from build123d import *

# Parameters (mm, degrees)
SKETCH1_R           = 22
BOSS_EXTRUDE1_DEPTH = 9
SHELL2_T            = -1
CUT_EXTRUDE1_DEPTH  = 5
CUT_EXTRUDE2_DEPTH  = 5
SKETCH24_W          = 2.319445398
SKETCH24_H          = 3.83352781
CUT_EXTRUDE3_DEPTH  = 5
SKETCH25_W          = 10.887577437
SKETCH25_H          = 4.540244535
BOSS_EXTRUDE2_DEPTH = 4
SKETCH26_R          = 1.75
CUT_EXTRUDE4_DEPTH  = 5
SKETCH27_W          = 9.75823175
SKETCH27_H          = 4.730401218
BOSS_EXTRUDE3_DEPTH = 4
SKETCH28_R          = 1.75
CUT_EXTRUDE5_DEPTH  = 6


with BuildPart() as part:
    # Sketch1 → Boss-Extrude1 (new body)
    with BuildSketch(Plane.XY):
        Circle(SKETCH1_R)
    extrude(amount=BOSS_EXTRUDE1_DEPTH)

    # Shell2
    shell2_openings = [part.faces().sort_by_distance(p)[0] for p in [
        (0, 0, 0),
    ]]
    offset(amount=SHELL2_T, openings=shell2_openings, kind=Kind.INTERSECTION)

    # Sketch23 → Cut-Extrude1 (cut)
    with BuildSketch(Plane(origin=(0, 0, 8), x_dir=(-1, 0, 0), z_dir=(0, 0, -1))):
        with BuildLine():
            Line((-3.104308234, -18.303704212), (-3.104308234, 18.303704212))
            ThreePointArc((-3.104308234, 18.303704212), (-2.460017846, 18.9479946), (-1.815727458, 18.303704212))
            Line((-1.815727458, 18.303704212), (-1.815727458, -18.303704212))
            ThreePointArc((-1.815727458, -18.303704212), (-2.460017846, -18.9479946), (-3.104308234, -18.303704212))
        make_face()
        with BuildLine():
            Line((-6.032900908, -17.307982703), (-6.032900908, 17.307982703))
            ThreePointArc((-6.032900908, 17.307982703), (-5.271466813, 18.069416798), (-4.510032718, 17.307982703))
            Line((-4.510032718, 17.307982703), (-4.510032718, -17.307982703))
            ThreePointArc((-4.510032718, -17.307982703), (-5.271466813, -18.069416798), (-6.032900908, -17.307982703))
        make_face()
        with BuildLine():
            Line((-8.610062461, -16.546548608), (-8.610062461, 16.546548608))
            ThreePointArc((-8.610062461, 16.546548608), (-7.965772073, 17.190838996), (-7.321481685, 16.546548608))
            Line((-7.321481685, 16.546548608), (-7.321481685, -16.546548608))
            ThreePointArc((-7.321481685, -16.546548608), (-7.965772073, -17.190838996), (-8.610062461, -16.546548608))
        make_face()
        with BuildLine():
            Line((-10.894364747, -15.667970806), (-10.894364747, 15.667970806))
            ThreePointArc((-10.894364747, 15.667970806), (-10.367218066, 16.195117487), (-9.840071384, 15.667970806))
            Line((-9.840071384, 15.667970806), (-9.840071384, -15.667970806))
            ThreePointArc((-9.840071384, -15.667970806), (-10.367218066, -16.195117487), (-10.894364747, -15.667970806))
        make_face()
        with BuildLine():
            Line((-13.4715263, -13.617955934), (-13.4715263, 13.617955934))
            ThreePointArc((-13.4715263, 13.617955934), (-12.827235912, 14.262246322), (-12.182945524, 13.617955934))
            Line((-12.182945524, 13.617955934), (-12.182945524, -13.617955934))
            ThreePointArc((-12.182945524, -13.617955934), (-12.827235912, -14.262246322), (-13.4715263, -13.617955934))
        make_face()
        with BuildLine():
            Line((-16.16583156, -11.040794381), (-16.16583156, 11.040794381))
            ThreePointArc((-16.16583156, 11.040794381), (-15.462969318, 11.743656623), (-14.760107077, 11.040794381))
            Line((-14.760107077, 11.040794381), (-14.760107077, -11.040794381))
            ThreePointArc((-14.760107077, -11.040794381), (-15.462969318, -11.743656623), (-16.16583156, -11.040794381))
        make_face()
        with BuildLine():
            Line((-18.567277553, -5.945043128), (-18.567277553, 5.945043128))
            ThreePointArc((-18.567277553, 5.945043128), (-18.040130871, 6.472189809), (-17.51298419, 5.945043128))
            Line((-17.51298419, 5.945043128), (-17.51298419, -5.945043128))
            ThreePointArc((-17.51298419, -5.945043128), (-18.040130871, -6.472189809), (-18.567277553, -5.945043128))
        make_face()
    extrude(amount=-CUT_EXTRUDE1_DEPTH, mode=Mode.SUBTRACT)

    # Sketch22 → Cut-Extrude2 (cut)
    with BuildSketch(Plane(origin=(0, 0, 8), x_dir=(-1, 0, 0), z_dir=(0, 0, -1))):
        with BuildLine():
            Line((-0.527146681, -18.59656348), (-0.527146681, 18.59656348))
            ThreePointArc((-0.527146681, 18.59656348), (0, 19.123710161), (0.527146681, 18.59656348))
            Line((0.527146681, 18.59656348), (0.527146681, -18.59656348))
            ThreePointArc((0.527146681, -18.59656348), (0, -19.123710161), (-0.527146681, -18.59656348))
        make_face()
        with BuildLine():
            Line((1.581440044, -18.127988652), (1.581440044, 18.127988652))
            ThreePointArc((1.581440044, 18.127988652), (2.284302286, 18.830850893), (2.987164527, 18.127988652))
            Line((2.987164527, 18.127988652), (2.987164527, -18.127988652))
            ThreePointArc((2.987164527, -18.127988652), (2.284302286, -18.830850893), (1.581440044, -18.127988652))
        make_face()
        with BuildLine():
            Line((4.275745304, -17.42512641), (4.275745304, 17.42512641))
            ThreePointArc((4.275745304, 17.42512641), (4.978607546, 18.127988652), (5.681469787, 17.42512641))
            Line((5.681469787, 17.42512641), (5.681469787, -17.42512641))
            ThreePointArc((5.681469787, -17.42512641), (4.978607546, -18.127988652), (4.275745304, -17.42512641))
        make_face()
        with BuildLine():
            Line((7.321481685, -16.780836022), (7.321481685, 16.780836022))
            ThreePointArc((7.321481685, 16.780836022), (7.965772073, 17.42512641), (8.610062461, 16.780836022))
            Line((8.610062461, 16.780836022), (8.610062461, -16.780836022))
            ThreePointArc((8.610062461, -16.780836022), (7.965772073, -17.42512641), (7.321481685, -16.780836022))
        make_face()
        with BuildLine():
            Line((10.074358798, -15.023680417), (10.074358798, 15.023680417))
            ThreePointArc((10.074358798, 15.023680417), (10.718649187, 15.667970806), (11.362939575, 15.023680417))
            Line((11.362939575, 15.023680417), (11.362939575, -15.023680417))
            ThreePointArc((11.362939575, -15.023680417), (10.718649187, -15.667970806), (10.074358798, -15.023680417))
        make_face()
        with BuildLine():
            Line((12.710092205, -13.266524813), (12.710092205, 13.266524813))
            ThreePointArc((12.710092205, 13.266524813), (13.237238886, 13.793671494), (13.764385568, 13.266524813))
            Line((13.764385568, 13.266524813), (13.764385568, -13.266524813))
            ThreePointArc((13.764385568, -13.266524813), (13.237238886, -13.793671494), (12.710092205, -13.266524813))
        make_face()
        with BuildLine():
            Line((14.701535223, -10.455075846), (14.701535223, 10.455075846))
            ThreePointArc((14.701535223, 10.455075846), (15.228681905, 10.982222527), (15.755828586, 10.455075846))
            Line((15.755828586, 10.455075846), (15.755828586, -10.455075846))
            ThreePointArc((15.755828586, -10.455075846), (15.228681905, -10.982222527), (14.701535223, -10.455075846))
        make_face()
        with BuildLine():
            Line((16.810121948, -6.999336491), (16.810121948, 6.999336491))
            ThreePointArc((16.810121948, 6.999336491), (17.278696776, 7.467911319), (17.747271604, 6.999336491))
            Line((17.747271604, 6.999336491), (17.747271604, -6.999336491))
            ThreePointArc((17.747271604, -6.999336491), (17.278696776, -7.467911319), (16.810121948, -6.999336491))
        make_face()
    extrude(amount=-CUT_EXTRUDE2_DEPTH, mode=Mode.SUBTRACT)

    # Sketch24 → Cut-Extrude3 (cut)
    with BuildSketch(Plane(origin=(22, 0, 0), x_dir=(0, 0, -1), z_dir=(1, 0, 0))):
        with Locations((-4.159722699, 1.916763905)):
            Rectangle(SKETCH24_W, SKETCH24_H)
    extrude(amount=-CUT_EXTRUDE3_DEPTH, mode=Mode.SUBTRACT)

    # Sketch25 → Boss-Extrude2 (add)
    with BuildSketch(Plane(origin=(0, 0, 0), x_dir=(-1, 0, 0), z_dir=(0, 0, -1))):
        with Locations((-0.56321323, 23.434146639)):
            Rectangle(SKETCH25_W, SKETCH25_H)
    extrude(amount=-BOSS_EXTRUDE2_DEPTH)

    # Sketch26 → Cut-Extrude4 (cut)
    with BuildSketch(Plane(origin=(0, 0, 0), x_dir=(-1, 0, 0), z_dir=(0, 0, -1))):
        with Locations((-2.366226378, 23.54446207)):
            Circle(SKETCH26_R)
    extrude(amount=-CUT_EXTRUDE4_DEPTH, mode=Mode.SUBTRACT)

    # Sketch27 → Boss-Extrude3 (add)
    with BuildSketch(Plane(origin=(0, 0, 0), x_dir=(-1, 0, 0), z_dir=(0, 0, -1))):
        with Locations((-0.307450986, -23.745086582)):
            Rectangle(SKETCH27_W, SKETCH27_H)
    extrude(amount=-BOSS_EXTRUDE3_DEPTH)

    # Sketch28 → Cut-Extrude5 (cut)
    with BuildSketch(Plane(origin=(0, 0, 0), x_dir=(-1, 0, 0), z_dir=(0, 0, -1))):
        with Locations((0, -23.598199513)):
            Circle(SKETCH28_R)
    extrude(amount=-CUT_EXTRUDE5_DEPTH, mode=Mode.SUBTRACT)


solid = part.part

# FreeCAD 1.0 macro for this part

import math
import FreeCAD as App
import Part
import Sketcher
Q = App.Units.Quantity


def faces_at(feature, points):
    """Names of the faces that lie closest to the given points."""
    faces = feature.Shape.Faces
    near = lambda p: min(range(len(faces)), key=lambda i: faces[i].distToShape(Part.Vertex(*p))[0])
    return sorted({f"Face{near(p) + 1}" for p in points})

doc = App.newDocument("Part")
body = doc.addObject("PartDesign::Body", "Body")

sketch1 = doc.addObject("Sketcher::SketchObject", "Sketch")
body.addObject(sketch1)
sketch1.AttachmentSupport = (doc.XY_Plane, [""])
sketch1.MapMode = "FlatFace"
sketch1.addGeometry(Part.Circle(App.Vector(0, 0, 0), App.Vector(0, 0, 1), 22), False)
sketch1.addConstraint([
    Sketcher.Constraint("Coincident", 0, 3, -1, 1),
    Sketcher.Constraint("Diameter", 0, Q("44 mm")),
])
pad1 = doc.addObject("PartDesign::Pad", "Pad")
body.addObject(pad1)
pad1.Profile = sketch1
pad1.Length = 9
doc.recompute()

thickness = doc.addObject("PartDesign::Thickness", "Thickness")
body.addObject(thickness)
thickness.Base = (pad1, faces_at(pad1, [(0, 0, 0)]))
thickness.Value = 1
thickness.Reversed = True
thickness.Join = "Intersection"

sketch2 = doc.addObject("Sketcher::SketchObject", "Sketch001")
body.addObject(sketch2)
sketch2.AttachmentSupport = (doc.XY_Plane, [""])
sketch2.MapMode = "FlatFace"
sketch2.AttachmentOffset = App.Placement(App.Vector(0, 0, 8), App.Rotation())
sketch2.addGeometry([
    Part.LineSegment(App.Vector(3.1, 18.3, 0), App.Vector(3.1, -18.3, 0)),
    Part.ArcOfCircle(Part.Circle(App.Vector(2.5, -18.3, 0), App.Vector(0, 0, 1), 0.6), math.radians(180), math.radians(360)),
    Part.LineSegment(App.Vector(1.8, -18.3, 0), App.Vector(1.8, 18.3, 0)),
    Part.ArcOfCircle(Part.Circle(App.Vector(2.5, 18.3, 0), App.Vector(0, 0, 1), 0.6), math.radians(0), math.radians(180)),
    Part.LineSegment(App.Vector(6, 17.3, 0), App.Vector(6, -17.3, 0)),
    Part.ArcOfCircle(Part.Circle(App.Vector(5.3, -17.3, 0), App.Vector(0, 0, 1), 0.8), math.radians(180), math.radians(360)),
    Part.LineSegment(App.Vector(4.5, -17.3, 0), App.Vector(4.5, 17.3, 0)),
    Part.ArcOfCircle(Part.Circle(App.Vector(5.3, 17.3, 0), App.Vector(0, 0, 1), 0.8), math.radians(0), math.radians(180)),
    Part.LineSegment(App.Vector(8.6, 16.5, 0), App.Vector(8.6, -16.5, 0)),
    Part.ArcOfCircle(Part.Circle(App.Vector(8, -16.5, 0), App.Vector(0, 0, 1), 0.6), math.radians(180), math.radians(360)),
    Part.LineSegment(App.Vector(7.3, -16.5, 0), App.Vector(7.3, 16.5, 0)),
    Part.ArcOfCircle(Part.Circle(App.Vector(8, 16.5, 0), App.Vector(0, 0, 1), 0.6), math.radians(0), math.radians(180)),
    Part.LineSegment(App.Vector(10.9, 15.7, 0), App.Vector(10.9, -15.7, 0)),
    Part.ArcOfCircle(Part.Circle(App.Vector(10.4, -15.7, 0), App.Vector(0, 0, 1), 0.5), math.radians(180), math.radians(360)),
    Part.LineSegment(App.Vector(9.8, -15.7, 0), App.Vector(9.8, 15.7, 0)),
    Part.ArcOfCircle(Part.Circle(App.Vector(10.4, 15.7, 0), App.Vector(0, 0, 1), 0.5), math.radians(0), math.radians(180)),
    Part.LineSegment(App.Vector(13.5, 13.6, 0), App.Vector(13.5, -13.6, 0)),
    Part.ArcOfCircle(Part.Circle(App.Vector(12.8, -13.6, 0), App.Vector(0, 0, 1), 0.6), math.radians(180), math.radians(360)),
    Part.LineSegment(App.Vector(12.2, -13.6, 0), App.Vector(12.2, 13.6, 0)),
    Part.ArcOfCircle(Part.Circle(App.Vector(12.8, 13.6, 0), App.Vector(0, 0, 1), 0.6), math.radians(0), math.radians(180)),
    Part.LineSegment(App.Vector(16.2, 11, 0), App.Vector(16.2, -11, 0)),
    Part.ArcOfCircle(Part.Circle(App.Vector(15.5, -11, 0), App.Vector(0, 0, 1), 0.7), math.radians(180), math.radians(360)),
    Part.LineSegment(App.Vector(14.8, -11, 0), App.Vector(14.8, 11, 0)),
    Part.ArcOfCircle(Part.Circle(App.Vector(15.5, 11, 0), App.Vector(0, 0, 1), 0.7), math.radians(0), math.radians(180)),
    Part.LineSegment(App.Vector(18.6, 5.9, 0), App.Vector(18.6, -5.9, 0)),
    Part.ArcOfCircle(Part.Circle(App.Vector(18, -5.9, 0), App.Vector(0, 0, 1), 0.5), math.radians(-180), math.radians(0)),
    Part.LineSegment(App.Vector(17.5, -5.9, 0), App.Vector(17.5, 5.9, 0)),
    Part.ArcOfCircle(Part.Circle(App.Vector(18, 5.9, 0), App.Vector(0, 0, 1), 0.5), math.radians(0), math.radians(180)),
], False)
sketch2.addConstraint([
    Sketcher.Constraint("Tangent", 0, 2, 1, 2),
    Sketcher.Constraint("Tangent", 1, 1, 2, 1),
    Sketcher.Constraint("Tangent", 2, 2, 3, 2),
    Sketcher.Constraint("Tangent", 3, 1, 0, 1),
    Sketcher.Constraint("Tangent", 4, 2, 5, 2),
    Sketcher.Constraint("Tangent", 5, 1, 6, 1),
    Sketcher.Constraint("Tangent", 6, 2, 7, 2),
    Sketcher.Constraint("Tangent", 7, 1, 4, 1),
    Sketcher.Constraint("Tangent", 8, 2, 9, 2),
    Sketcher.Constraint("Tangent", 9, 1, 10, 1),
    Sketcher.Constraint("Tangent", 10, 2, 11, 2),
    Sketcher.Constraint("Tangent", 11, 1, 8, 1),
    Sketcher.Constraint("Tangent", 12, 2, 13, 2),
    Sketcher.Constraint("Tangent", 13, 1, 14, 1),
    Sketcher.Constraint("Tangent", 14, 2, 15, 2),
    Sketcher.Constraint("Tangent", 15, 1, 12, 1),
    Sketcher.Constraint("Tangent", 16, 2, 17, 2),
    Sketcher.Constraint("Tangent", 17, 1, 18, 1),
    Sketcher.Constraint("Tangent", 18, 2, 19, 2),
    Sketcher.Constraint("Tangent", 19, 1, 16, 1),
    Sketcher.Constraint("Tangent", 20, 2, 21, 2),
    Sketcher.Constraint("Tangent", 21, 1, 22, 1),
    Sketcher.Constraint("Tangent", 22, 2, 23, 2),
    Sketcher.Constraint("Tangent", 23, 1, 20, 1),
    Sketcher.Constraint("Tangent", 24, 2, 25, 2),
    Sketcher.Constraint("Tangent", 25, 1, 26, 1),
    Sketcher.Constraint("Tangent", 26, 2, 27, 2),
    Sketcher.Constraint("Tangent", 27, 1, 24, 1),
    Sketcher.Constraint("Vertical", 0),
    Sketcher.Constraint("Vertical", 2),
    Sketcher.Constraint("Vertical", 4),
    Sketcher.Constraint("Vertical", 6),
    Sketcher.Constraint("Vertical", 8),
    Sketcher.Constraint("Vertical", 10),
    Sketcher.Constraint("Vertical", 12),
    Sketcher.Constraint("Vertical", 14),
    Sketcher.Constraint("Vertical", 16),
    Sketcher.Constraint("Vertical", 18),
    Sketcher.Constraint("Vertical", 20),
    Sketcher.Constraint("Vertical", 22),
    Sketcher.Constraint("Vertical", 24),
    Sketcher.Constraint("Vertical", 26),
    Sketcher.Constraint("Equal", 3, 9),
    Sketcher.Constraint("Equal", 11, 17),
    Sketcher.Constraint("Equal", 15, 25),
    Sketcher.Constraint("Radius", 1, Q("0.64429 mm")),
    Sketcher.Constraint("Radius", 5, Q("0.761434 mm")),
    Sketcher.Constraint("Radius", 13, Q("0.527147 mm")),
    Sketcher.Constraint("Radius", 21, Q("0.702862 mm")),
    Sketcher.Constraint("DistanceY", 0, 2, 0, 1, Q("36.607408 mm")),
    Sketcher.Constraint("DistanceY", 12, 2, 12, 1, Q("31.335942 mm")),
    Sketcher.Constraint("DistanceY", 16, 2, 16, 1, Q("27.235912 mm")),
    Sketcher.Constraint("DistanceY", 20, 2, 20, 1, Q("22.081589 mm")),
    Sketcher.Constraint("DistanceX", -1, 1, 4, 2, Q("6.032901 mm")),
    Sketcher.Constraint("DistanceX", 1, 3, 13, 3, Q("7.9072 mm")),
    Sketcher.Constraint("DistanceX", 9, 3, 13, 1, Q("1.874299 mm")),
    Sketcher.Constraint("DistanceX", 20, 2, 25, 3, Q("1.874299 mm")),
    Sketcher.Constraint("DistanceY", 4, 2, 4, 1, Q("34.615965 mm")),
    Sketcher.Constraint("DistanceY", 8, 2, 8, 1, Q("33.093097 mm")),
    Sketcher.Constraint("DistanceY", 24, 2, 24, 1, Q("11.890086 mm")),
    Sketcher.Constraint("DistanceY", 9, 3, -1, 1, Q("16.546549 mm")),
    Sketcher.Constraint("DistanceX", -1, 1, 13, 3, Q("10.367218 mm")),
    Sketcher.Constraint("DistanceY", 13, 3, -1, 1, Q("15.667971 mm")),
    Sketcher.Constraint("DistanceX", -1, 1, 21, 3, Q("15.462969 mm")),
    Sketcher.Constraint("DistanceY", 1, 3, 5, 3, Q("0.995722 mm")),
    Sketcher.Constraint("DistanceY", 9, 3, 7, 3, Q("33.854531 mm")),
    Sketcher.Constraint("DistanceX", 5, 3, 17, 3, Q("7.555769 mm")),
    Sketcher.Constraint("DistanceY", 1, 3, 17, 3, Q("4.685748 mm")),
    Sketcher.Constraint("DistanceY", 17, 3, 21, 3, Q("2.577162 mm")),
    Sketcher.Constraint("DistanceY", 21, 3, 25, 3, Q("5.095751 mm")),
])
pocket1 = doc.addObject("PartDesign::Pocket", "Pocket")
body.addObject(pocket1)
pocket1.Profile = sketch2
pocket1.Length = 5
pocket1.Reversed = True

sketch3 = doc.addObject("Sketcher::SketchObject", "Sketch002")
body.addObject(sketch3)
sketch3.AttachmentSupport = (doc.XY_Plane, [""])
sketch3.MapMode = "FlatFace"
sketch3.AttachmentOffset = App.Placement(App.Vector(0, 0, 8), App.Rotation())
sketch3.addGeometry([
    Part.LineSegment(App.Vector(0.53, 18.6, 0), App.Vector(0.53, -18.6, 0)),
    Part.ArcOfCircle(Part.Circle(App.Vector(0, -18.6, 0), App.Vector(0, 0, 1), 0.53), math.radians(180), math.radians(360)),
    Part.LineSegment(App.Vector(-0.53, -18.6, 0), App.Vector(-0.53, 18.6, 0)),
    Part.ArcOfCircle(Part.Circle(App.Vector(0, 18.6, 0), App.Vector(0, 0, 1), 0.53), math.radians(0), math.radians(180)),
    Part.LineSegment(App.Vector(-1.58, 18.13, 0), App.Vector(-1.58, -18.13, 0)),
    Part.ArcOfCircle(Part.Circle(App.Vector(-2.28, -18.13, 0), App.Vector(0, 0, 1), 0.7), math.radians(180), math.radians(360)),
    Part.LineSegment(App.Vector(-2.99, -18.13, 0), App.Vector(-2.99, 18.13, 0)),
    Part.ArcOfCircle(Part.Circle(App.Vector(-2.28, 18.13, 0), App.Vector(0, 0, 1), 0.7), math.radians(0), math.radians(180)),
    Part.LineSegment(App.Vector(-4.28, 17.43, 0), App.Vector(-4.28, -17.43, 0)),
    Part.ArcOfCircle(Part.Circle(App.Vector(-4.98, -17.43, 0), App.Vector(0, 0, 1), 0.7), math.radians(180), math.radians(360)),
    Part.LineSegment(App.Vector(-5.68, -17.43, 0), App.Vector(-5.68, 17.43, 0)),
    Part.ArcOfCircle(Part.Circle(App.Vector(-4.98, 17.43, 0), App.Vector(0, 0, 1), 0.7), math.radians(0), math.radians(180)),
    Part.LineSegment(App.Vector(-7.32, 16.78, 0), App.Vector(-7.32, -16.78, 0)),
    Part.ArcOfCircle(Part.Circle(App.Vector(-7.97, -16.78, 0), App.Vector(0, 0, 1), 0.64), math.radians(180), math.radians(360)),
    Part.LineSegment(App.Vector(-8.61, -16.78, 0), App.Vector(-8.61, 16.78, 0)),
    Part.ArcOfCircle(Part.Circle(App.Vector(-7.97, 16.78, 0), App.Vector(0, 0, 1), 0.64), math.radians(0), math.radians(180)),
    Part.LineSegment(App.Vector(-10.07, 15.02, 0), App.Vector(-10.07, -15.02, 0)),
    Part.ArcOfCircle(Part.Circle(App.Vector(-10.72, -15.02, 0), App.Vector(0, 0, 1), 0.64), math.radians(180), math.radians(360)),
    Part.LineSegment(App.Vector(-11.36, -15.02, 0), App.Vector(-11.36, 15.02, 0)),
    Part.ArcOfCircle(Part.Circle(App.Vector(-10.72, 15.02, 0), App.Vector(0, 0, 1), 0.64), math.radians(0), math.radians(180)),
    Part.LineSegment(App.Vector(-12.71, 13.27, 0), App.Vector(-12.71, -13.27, 0)),
    Part.ArcOfCircle(Part.Circle(App.Vector(-13.24, -13.27, 0), App.Vector(0, 0, 1), 0.53), math.radians(-180), math.radians(0)),
    Part.LineSegment(App.Vector(-13.76, -13.27, 0), App.Vector(-13.76, 13.27, 0)),
    Part.ArcOfCircle(Part.Circle(App.Vector(-13.24, 13.27, 0), App.Vector(0, 0, 1), 0.53), math.radians(0), math.radians(180)),
    Part.LineSegment(App.Vector(-14.7, 10.46, 0), App.Vector(-14.7, -10.46, 0)),
    Part.ArcOfCircle(Part.Circle(App.Vector(-15.23, -10.46, 0), App.Vector(0, 0, 1), 0.53), math.radians(-180), math.radians(0)),
    Part.LineSegment(App.Vector(-15.76, -10.46, 0), App.Vector(-15.76, 10.46, 0)),
    Part.ArcOfCircle(Part.Circle(App.Vector(-15.23, 10.46, 0), App.Vector(0, 0, 1), 0.53), math.radians(0), math.radians(180)),
    Part.LineSegment(App.Vector(-16.81, 7, 0), App.Vector(-16.81, -7, 0)),
    Part.ArcOfCircle(Part.Circle(App.Vector(-17.28, -7, 0), App.Vector(0, 0, 1), 0.47), math.radians(180), math.radians(360)),
    Part.LineSegment(App.Vector(-17.75, -7, 0), App.Vector(-17.75, 7, 0)),
    Part.ArcOfCircle(Part.Circle(App.Vector(-17.28, 7, 0), App.Vector(0, 0, 1), 0.47), math.radians(0), math.radians(180)),
], False)
sketch3.addConstraint([
    Sketcher.Constraint("Tangent", 0, 2, 1, 2),
    Sketcher.Constraint("Tangent", 1, 1, 2, 1),
    Sketcher.Constraint("Tangent", 2, 2, 3, 2),
    Sketcher.Constraint("Tangent", 3, 1, 0, 1),
    Sketcher.Constraint("Tangent", 4, 2, 5, 2),
    Sketcher.Constraint("Tangent", 5, 1, 6, 1),
    Sketcher.Constraint("Tangent", 6, 2, 7, 2),
    Sketcher.Constraint("Tangent", 7, 1, 4, 1),
    Sketcher.Constraint("Tangent", 8, 2, 9, 2),
    Sketcher.Constraint("Tangent", 9, 1, 10, 1),
    Sketcher.Constraint("Tangent", 10, 2, 11, 2),
    Sketcher.Constraint("Tangent", 11, 1, 8, 1),
    Sketcher.Constraint("Tangent", 12, 2, 13, 2),
    Sketcher.Constraint("Tangent", 13, 1, 14, 1),
    Sketcher.Constraint("Tangent", 14, 2, 15, 2),
    Sketcher.Constraint("Tangent", 15, 1, 12, 1),
    Sketcher.Constraint("Tangent", 16, 2, 17, 2),
    Sketcher.Constraint("Tangent", 17, 1, 18, 1),
    Sketcher.Constraint("Tangent", 18, 2, 19, 2),
    Sketcher.Constraint("Tangent", 19, 1, 16, 1),
    Sketcher.Constraint("Tangent", 20, 2, 21, 2),
    Sketcher.Constraint("Tangent", 21, 1, 22, 1),
    Sketcher.Constraint("Tangent", 22, 2, 23, 2),
    Sketcher.Constraint("Tangent", 23, 1, 20, 1),
    Sketcher.Constraint("Tangent", 24, 2, 25, 2),
    Sketcher.Constraint("Tangent", 25, 1, 26, 1),
    Sketcher.Constraint("Tangent", 26, 2, 27, 2),
    Sketcher.Constraint("Tangent", 27, 1, 24, 1),
    Sketcher.Constraint("Tangent", 28, 2, 29, 2),
    Sketcher.Constraint("Tangent", 29, 1, 30, 1),
    Sketcher.Constraint("Tangent", 30, 2, 31, 2),
    Sketcher.Constraint("Tangent", 31, 1, 28, 1),
    Sketcher.Constraint("Vertical", 0),
    Sketcher.Constraint("Vertical", 2),
    Sketcher.Constraint("Vertical", 4),
    Sketcher.Constraint("Vertical", 6),
    Sketcher.Constraint("Vertical", 8),
    Sketcher.Constraint("Vertical", 10),
    Sketcher.Constraint("Vertical", 12),
    Sketcher.Constraint("Vertical", 14),
    Sketcher.Constraint("Vertical", 16),
    Sketcher.Constraint("Vertical", 18),
    Sketcher.Constraint("Vertical", 20),
    Sketcher.Constraint("Vertical", 22),
    Sketcher.Constraint("Vertical", 24),
    Sketcher.Constraint("Vertical", 26),
    Sketcher.Constraint("Vertical", 28),
    Sketcher.Constraint("Vertical", 30),
    Sketcher.Constraint("Equal", 7, 9),
    Sketcher.Constraint("Equal", 15, 17),
    Sketcher.Constraint("Equal", 3, 21),
    Sketcher.Constraint("Equal", 23, 25),
    Sketcher.Constraint("Symmetric", 1, 3, 3, 3, -1, 1),
    Sketcher.Constraint("Radius", 13, Q("0.64429 mm")),
    Sketcher.Constraint("Radius", 1, Q("0.527147 mm")),
    Sketcher.Constraint("Radius", 5, Q("0.702862 mm")),
    Sketcher.Constraint("Radius", 29, Q("0.468575 mm")),
    Sketcher.Constraint("DistanceY", 16, 2, 16, 1, Q("30.047361 mm")),
    Sketcher.Constraint("DistanceY", 20, 2, 20, 1, Q("26.53305 mm")),
    Sketcher.Constraint("DistanceY", 24, 2, 24, 1, Q("20.910152 mm")),
    Sketcher.Constraint("DistanceY", 9, 3, 21, 3, Q("4.158602 mm")),
    Sketcher.Constraint("DistanceY", 23, 3, 11, 3, Q("4.158602 mm")),
    Sketcher.Constraint("DistanceY", 13, 3, 29, 3, Q("9.7815 mm")),
    Sketcher.Constraint("DistanceY", 31, 3, 15, 3, Q("9.7815 mm")),
    Sketcher.Constraint("DistanceX", 21, 3, 17, 1, Q("1.874299 mm")),
    Sketcher.Constraint("DistanceY", 0, 2, 0, 1, Q("37.193127 mm")),
    Sketcher.Constraint("DistanceY", 4, 2, 4, 1, Q("36.255977 mm")),
    Sketcher.Constraint("DistanceY", 12, 2, 12, 1, Q("33.561672 mm")),
    Sketcher.Constraint("DistanceY", 5, 3, -1, 1, Q("18.127989 mm")),
    Sketcher.Constraint("DistanceX", 17, 3, -1, 1, Q("10.718649 mm")),
    Sketcher.Constraint("DistanceY", 17, 3, -1, 1, Q("15.02368 mm")),
    Sketcher.Constraint("DistanceX", 25, 3, -1, 1, Q("15.228682 mm")),
    Sketcher.Constraint("DistanceX", 4, 2, -1, 1, Q("1.58144 mm")),
    Sketcher.Constraint("DistanceX", 9, 1, -1, 1, Q("5.68147 mm")),
    Sketcher.Constraint("DistanceX", 12, 2, -1, 1, Q("7.321482 mm")),
    Sketcher.Constraint("DistanceX", 28, 2, -1, 1, Q("16.810122 mm")),
    Sketcher.Constraint("DistanceY", 9, 3, 3, 3, Q("36.02169 mm")),
    Sketcher.Constraint("DistanceY", 9, 3, 13, 3, Q("0.64429 mm")),
    Sketcher.Constraint("DistanceY", 21, 3, 25, 3, Q("2.811449 mm")),
])
pocket2 = doc.addObject("PartDesign::Pocket", "Pocket001")
body.addObject(pocket2)
pocket2.Profile = sketch3
pocket2.Length = 5
pocket2.Reversed = True

sketch4 = doc.addObject("Sketcher::SketchObject", "Sketch003")
body.addObject(sketch4)
sketch4.AttachmentSupport = (doc.YZ_Plane, [""])
sketch4.MapMode = "FlatFace"
sketch4.AttachmentOffset = App.Placement(App.Vector(0, 0, 22), App.Rotation())
sketch4.addGeometry([
    Part.LineSegment(App.Vector(3.8, 5.3, 0), App.Vector(0, 5.3, 0)),
    Part.LineSegment(App.Vector(0, 5.3, 0), App.Vector(0, 3, 0)),
    Part.LineSegment(App.Vector(0, 3, 0), App.Vector(3.8, 3, 0)),
    Part.LineSegment(App.Vector(3.8, 3, 0), App.Vector(3.8, 5.3, 0)),
], False)
sketch4.addConstraint([
    Sketcher.Constraint("Coincident", 0, 2, 1, 1),
    Sketcher.Constraint("Coincident", 1, 2, 2, 1),
    Sketcher.Constraint("Coincident", 2, 2, 3, 1),
    Sketcher.Constraint("Coincident", 3, 2, 0, 1),
    Sketcher.Constraint("Horizontal", 0),
    Sketcher.Constraint("Vertical", 1),
    Sketcher.Constraint("Horizontal", 2),
    Sketcher.Constraint("Vertical", 3),
    Sketcher.Constraint("PointOnObject", 0, 2, -2),
    Sketcher.Constraint("DistanceY", -1, 1, 1, 2, Q("3 mm")),
    Sketcher.Constraint("DistanceX", 0, 2, 0, 1, Q("3.833528 mm")),
    Sketcher.Constraint("DistanceY", 1, 2, 1, 1, Q("2.319445 mm")),
])
pocket3 = doc.addObject("PartDesign::Pocket", "Pocket002")
body.addObject(pocket3)
pocket3.Profile = sketch4
pocket3.Length = 5

sketch5 = doc.addObject("Sketcher::SketchObject", "Sketch004")
body.addObject(sketch5)
sketch5.AttachmentSupport = (doc.XY_Plane, [""])
sketch5.MapMode = "FlatFace"
sketch5.addGeometry([
    Part.LineSegment(App.Vector(6, 25.7, 0), App.Vector(6, 21.2, 0)),
    Part.LineSegment(App.Vector(6, 21.2, 0), App.Vector(-4.9, 21.2, 0)),
    Part.LineSegment(App.Vector(-4.9, 21.2, 0), App.Vector(-4.9, 25.7, 0)),
    Part.LineSegment(App.Vector(-4.9, 25.7, 0), App.Vector(6, 25.7, 0)),
], False)
sketch5.addConstraint([
    Sketcher.Constraint("Coincident", 0, 2, 1, 1),
    Sketcher.Constraint("Coincident", 1, 2, 2, 1),
    Sketcher.Constraint("Coincident", 2, 2, 3, 1),
    Sketcher.Constraint("Coincident", 3, 2, 0, 1),
    Sketcher.Constraint("Vertical", 0),
    Sketcher.Constraint("Horizontal", 1),
    Sketcher.Constraint("Vertical", 2),
    Sketcher.Constraint("Horizontal", 3),
    Sketcher.Constraint("DistanceX", -1, 1, 0, 2, Q("6.007002 mm")),
    Sketcher.Constraint("DistanceX", 1, 2, 1, 1, Q("10.887577 mm")),
    Sketcher.Constraint("DistanceY", 0, 2, 0, 1, Q("4.540245 mm")),
    Sketcher.Constraint("DistanceY", -1, 1, 2, 2, Q("25.704269 mm")),
])
pad2 = doc.addObject("PartDesign::Pad", "Pad001")
body.addObject(pad2)
pad2.Profile = sketch5
pad2.Length = 4

sketch6 = doc.addObject("Sketcher::SketchObject", "Sketch005")
body.addObject(sketch6)
sketch6.AttachmentSupport = (doc.XY_Plane, [""])
sketch6.MapMode = "FlatFace"
sketch6.addGeometry(Part.Circle(App.Vector(2.4, 23.5, 0), App.Vector(0, 0, 1), 1.8), False)
sketch6.addConstraint([
    Sketcher.Constraint("Diameter", 0, Q("3.5 mm")),
    Sketcher.Constraint("DistanceX", -1, 1, 0, 3, Q("2.366226 mm")),
    Sketcher.Constraint("DistanceY", -1, 1, 0, 3, Q("23.544462 mm")),
])
pocket4 = doc.addObject("PartDesign::Pocket", "Pocket003")
body.addObject(pocket4)
pocket4.Profile = sketch6
pocket4.Length = 5
pocket4.Reversed = True

sketch7 = doc.addObject("Sketcher::SketchObject", "Sketch006")
body.addObject(sketch7)
sketch7.AttachmentSupport = (doc.XY_Plane, [""])
sketch7.MapMode = "FlatFace"
sketch7.addGeometry([
    Part.LineSegment(App.Vector(5.2, -21.4, 0), App.Vector(5.2, -26.1, 0)),
    Part.LineSegment(App.Vector(5.2, -26.1, 0), App.Vector(-4.6, -26.1, 0)),
    Part.LineSegment(App.Vector(-4.6, -26.1, 0), App.Vector(-4.6, -21.4, 0)),
    Part.LineSegment(App.Vector(-4.6, -21.4, 0), App.Vector(5.2, -21.4, 0)),
], False)
sketch7.addConstraint([
    Sketcher.Constraint("Coincident", 0, 2, 1, 1),
    Sketcher.Constraint("Coincident", 1, 2, 2, 1),
    Sketcher.Constraint("Coincident", 2, 2, 3, 1),
    Sketcher.Constraint("Coincident", 3, 2, 0, 1),
    Sketcher.Constraint("Vertical", 0),
    Sketcher.Constraint("Horizontal", 1),
    Sketcher.Constraint("Vertical", 2),
    Sketcher.Constraint("Horizontal", 3),
    Sketcher.Constraint("DistanceY", 0, 2, 0, 1, Q("4.730401 mm")),
    Sketcher.Constraint("DistanceX", 1, 2, 1, 1, Q("9.758232 mm")),
    Sketcher.Constraint("DistanceX", -1, 1, 0, 2, Q("5.186567 mm")),
    Sketcher.Constraint("DistanceY", 0, 2, -1, 1, Q("26.110287 mm")),
])
pad3 = doc.addObject("PartDesign::Pad", "Pad002")
body.addObject(pad3)
pad3.Profile = sketch7
pad3.Length = 4

sketch8 = doc.addObject("Sketcher::SketchObject", "Sketch007")
body.addObject(sketch8)
sketch8.AttachmentSupport = (doc.XY_Plane, [""])
sketch8.MapMode = "FlatFace"
sketch8.addGeometry(Part.Circle(App.Vector(0, -23.6, 0), App.Vector(0, 0, 1), 1.8), False)
sketch8.addConstraint([
    Sketcher.Constraint("PointOnObject", 0, 3, -2),
    Sketcher.Constraint("Diameter", 0, Q("3.5 mm")),
    Sketcher.Constraint("DistanceY", 0, 3, -1, 1, Q("23.5982 mm")),
])
pocket5 = doc.addObject("PartDesign::Pocket", "Pocket004")
body.addObject(pocket5)
pocket5.Profile = sketch8
pocket5.Length = 6
pocket5.Reversed = True

doc.recompute()
